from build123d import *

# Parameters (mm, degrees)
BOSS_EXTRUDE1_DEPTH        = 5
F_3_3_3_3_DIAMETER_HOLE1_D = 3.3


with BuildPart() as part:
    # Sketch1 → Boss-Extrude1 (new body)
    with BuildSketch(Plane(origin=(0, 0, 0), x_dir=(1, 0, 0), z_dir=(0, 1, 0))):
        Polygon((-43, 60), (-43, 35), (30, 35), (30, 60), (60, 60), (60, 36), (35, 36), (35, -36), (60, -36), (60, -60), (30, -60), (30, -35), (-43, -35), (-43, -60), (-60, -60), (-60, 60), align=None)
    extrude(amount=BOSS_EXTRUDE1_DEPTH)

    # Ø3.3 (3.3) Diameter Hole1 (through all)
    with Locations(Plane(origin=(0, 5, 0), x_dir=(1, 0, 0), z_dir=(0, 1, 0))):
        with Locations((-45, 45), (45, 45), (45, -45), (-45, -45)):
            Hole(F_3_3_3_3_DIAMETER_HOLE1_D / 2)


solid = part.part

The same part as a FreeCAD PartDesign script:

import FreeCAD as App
import Part
import Sketcher


def add_polygon(sketch, points):
    """Adds a closed chain of lines whose ends are joined by coincident constraints."""
    first, n = sketch.GeometryCount, len(points)
    for a, b in zip(points, points[1:] + points[:1]):
        sketch.addGeometry(Part.LineSegment(App.Vector(*a, 0), App.Vector(*b, 0)), False)
    for i in range(n):
        sketch.addConstraint(Sketcher.Constraint("Coincident", first + i, 2, first + (i + 1) % n, 1))

doc = App.newDocument("Part")
body = doc.addObject("PartDesign::Body", "Body")

# Sketch on XZ plane
sketch1 = doc.addObject("Sketcher::SketchObject", "Sketch")
body.addObject(sketch1)
sketch1.AttachmentSupport = (doc.XZ_Plane, [""])
sketch1.MapMode = "FlatFace"
add_polygon(sketch1, [(-43, -35), (-43, -60), (-60, -60), (-60, 60), (-43, 60), (-43, 35), (30, 35), (30, 60), (60, 60), (60, 36), (35, 36), (35, -36), (60, -36), (60, -60), (30, -60), (30, -35)])  # lines 0-15
sketch1.addConstraint([
    Sketcher.Constraint("Vertical", 0),
    Sketcher.Constraint("Horizontal", 1),
    Sketcher.Constraint("Vertical", 2),
    Sketcher.Constraint("Horizontal", 3),
    Sketcher.Constraint("Vertical", 4),
    Sketcher.Constraint("Horizontal", 5),
    Sketcher.Constraint("Vertical", 6),
    Sketcher.Constraint("Horizontal", 7),
    Sketcher.Constraint("Vertical", 8),
    Sketcher.Constraint("Horizontal", 9),
    Sketcher.Constraint("Vertical", 10),
    Sketcher.Constraint("Horizontal", 11),
    Sketcher.Constraint("Vertical", 12),
    Sketcher.Constraint("Horizontal", 13),
    Sketcher.Constraint("Vertical", 14),
    Sketcher.Constraint("Horizontal", 15),
    Sketcher.Constraint("Symmetric", 1, 2, 7, 2, -1, 1),
    Sketcher.Constraint("Symmetric", 2, 2, 12, 2, -1, 1),
    Sketcher.Constraint("Symmetric", 0, 2, 3, 2, -1),
    Sketcher.Constraint("Symmetric", 5, 2, 14, 2, -1),
    Sketcher.Constraint("Equal", 11, 0),
    Sketcher.Constraint("Equal", 8, 12),
    Sketcher.Constraint("DistanceX", 1, 2, 1, 1, 17.0),
    Sketcher.Constraint("DistanceX", 5, 1, 5, 2, 73.0),
    Sketcher.Constraint("DistanceX", 7, 1, 7, 2, 30.0),
    Sketcher.Constraint("DistanceX", 9, 2, 9, 1, 25.0),
    Sketcher.Constraint("DistanceY", 2, 1, 2, 2, 120.0),
    Sketcher.Constraint("DistanceY", 8, 2, 8, 1, 24.0),
])
pad1 = doc.addObject("PartDesign::Pad", "Pad")
body.addObject(pad1)
pad1.Profile = sketch1
pad1.Length = 5
pad1.Reversed = True

# Sketch on XZ plane
sketch2 = doc.addObject("Sketcher::SketchObject", "Sketch001")
body.addObject(sketch2)
sketch2.AttachmentSupport = (doc.XZ_Plane, [""])
sketch2.MapMode = "FlatFace"
sketch2.AttachmentOffset = App.Placement(App.Vector(0, 0, -5), App.Rotation())
sketch2.addGeometry([
    Part.Circle(App.Vector(-45, -45, 0), App.Vector(0, 0, 1), 1.6),
    Part.Circle(App.Vector(45, -45, 0), App.Vector(0, 0, 1), 1.6),
    Part.Circle(App.Vector(45, 45, 0), App.Vector(0, 0, 1), 1.6),
    Part.Circle(App.Vector(-45, 45, 0), App.Vector(0, 0, 1), 1.6),
], False)
sketch2.addConstraint([
    Sketcher.Constraint("Equal", 0, 1),
    Sketcher.Constraint("Equal", 1, 2),
    Sketcher.Constraint("Equal", 2, 3),
    Sketcher.Constraint("Symmetric", 0, 3, 2, 3, -1, 1),
    Sketcher.Constraint("Symmetric", 1, 3, 3, 3, -1, 1),
    Sketcher.Constraint("Symmetric", 0, 3, 1, 3, -2),
    Sketcher.Constraint("Diameter", 0, 3.3),
    Sketcher.Constraint("DistanceX", 0, 3, -1, 1, 45.0),
    Sketcher.Constraint("DistanceY", 0, 3, -1, 1, 45.0),
])
doc.recompute()
hole = doc.addObject("PartDesign::Hole", "Hole")
body.addObject(hole)
hole.Profile = sketch2
hole.ThreadType = "None"
hole.Diameter = 3.3
hole.DepthType = "ThroughAll"
hole.Reversed = True

doc.recompute()
